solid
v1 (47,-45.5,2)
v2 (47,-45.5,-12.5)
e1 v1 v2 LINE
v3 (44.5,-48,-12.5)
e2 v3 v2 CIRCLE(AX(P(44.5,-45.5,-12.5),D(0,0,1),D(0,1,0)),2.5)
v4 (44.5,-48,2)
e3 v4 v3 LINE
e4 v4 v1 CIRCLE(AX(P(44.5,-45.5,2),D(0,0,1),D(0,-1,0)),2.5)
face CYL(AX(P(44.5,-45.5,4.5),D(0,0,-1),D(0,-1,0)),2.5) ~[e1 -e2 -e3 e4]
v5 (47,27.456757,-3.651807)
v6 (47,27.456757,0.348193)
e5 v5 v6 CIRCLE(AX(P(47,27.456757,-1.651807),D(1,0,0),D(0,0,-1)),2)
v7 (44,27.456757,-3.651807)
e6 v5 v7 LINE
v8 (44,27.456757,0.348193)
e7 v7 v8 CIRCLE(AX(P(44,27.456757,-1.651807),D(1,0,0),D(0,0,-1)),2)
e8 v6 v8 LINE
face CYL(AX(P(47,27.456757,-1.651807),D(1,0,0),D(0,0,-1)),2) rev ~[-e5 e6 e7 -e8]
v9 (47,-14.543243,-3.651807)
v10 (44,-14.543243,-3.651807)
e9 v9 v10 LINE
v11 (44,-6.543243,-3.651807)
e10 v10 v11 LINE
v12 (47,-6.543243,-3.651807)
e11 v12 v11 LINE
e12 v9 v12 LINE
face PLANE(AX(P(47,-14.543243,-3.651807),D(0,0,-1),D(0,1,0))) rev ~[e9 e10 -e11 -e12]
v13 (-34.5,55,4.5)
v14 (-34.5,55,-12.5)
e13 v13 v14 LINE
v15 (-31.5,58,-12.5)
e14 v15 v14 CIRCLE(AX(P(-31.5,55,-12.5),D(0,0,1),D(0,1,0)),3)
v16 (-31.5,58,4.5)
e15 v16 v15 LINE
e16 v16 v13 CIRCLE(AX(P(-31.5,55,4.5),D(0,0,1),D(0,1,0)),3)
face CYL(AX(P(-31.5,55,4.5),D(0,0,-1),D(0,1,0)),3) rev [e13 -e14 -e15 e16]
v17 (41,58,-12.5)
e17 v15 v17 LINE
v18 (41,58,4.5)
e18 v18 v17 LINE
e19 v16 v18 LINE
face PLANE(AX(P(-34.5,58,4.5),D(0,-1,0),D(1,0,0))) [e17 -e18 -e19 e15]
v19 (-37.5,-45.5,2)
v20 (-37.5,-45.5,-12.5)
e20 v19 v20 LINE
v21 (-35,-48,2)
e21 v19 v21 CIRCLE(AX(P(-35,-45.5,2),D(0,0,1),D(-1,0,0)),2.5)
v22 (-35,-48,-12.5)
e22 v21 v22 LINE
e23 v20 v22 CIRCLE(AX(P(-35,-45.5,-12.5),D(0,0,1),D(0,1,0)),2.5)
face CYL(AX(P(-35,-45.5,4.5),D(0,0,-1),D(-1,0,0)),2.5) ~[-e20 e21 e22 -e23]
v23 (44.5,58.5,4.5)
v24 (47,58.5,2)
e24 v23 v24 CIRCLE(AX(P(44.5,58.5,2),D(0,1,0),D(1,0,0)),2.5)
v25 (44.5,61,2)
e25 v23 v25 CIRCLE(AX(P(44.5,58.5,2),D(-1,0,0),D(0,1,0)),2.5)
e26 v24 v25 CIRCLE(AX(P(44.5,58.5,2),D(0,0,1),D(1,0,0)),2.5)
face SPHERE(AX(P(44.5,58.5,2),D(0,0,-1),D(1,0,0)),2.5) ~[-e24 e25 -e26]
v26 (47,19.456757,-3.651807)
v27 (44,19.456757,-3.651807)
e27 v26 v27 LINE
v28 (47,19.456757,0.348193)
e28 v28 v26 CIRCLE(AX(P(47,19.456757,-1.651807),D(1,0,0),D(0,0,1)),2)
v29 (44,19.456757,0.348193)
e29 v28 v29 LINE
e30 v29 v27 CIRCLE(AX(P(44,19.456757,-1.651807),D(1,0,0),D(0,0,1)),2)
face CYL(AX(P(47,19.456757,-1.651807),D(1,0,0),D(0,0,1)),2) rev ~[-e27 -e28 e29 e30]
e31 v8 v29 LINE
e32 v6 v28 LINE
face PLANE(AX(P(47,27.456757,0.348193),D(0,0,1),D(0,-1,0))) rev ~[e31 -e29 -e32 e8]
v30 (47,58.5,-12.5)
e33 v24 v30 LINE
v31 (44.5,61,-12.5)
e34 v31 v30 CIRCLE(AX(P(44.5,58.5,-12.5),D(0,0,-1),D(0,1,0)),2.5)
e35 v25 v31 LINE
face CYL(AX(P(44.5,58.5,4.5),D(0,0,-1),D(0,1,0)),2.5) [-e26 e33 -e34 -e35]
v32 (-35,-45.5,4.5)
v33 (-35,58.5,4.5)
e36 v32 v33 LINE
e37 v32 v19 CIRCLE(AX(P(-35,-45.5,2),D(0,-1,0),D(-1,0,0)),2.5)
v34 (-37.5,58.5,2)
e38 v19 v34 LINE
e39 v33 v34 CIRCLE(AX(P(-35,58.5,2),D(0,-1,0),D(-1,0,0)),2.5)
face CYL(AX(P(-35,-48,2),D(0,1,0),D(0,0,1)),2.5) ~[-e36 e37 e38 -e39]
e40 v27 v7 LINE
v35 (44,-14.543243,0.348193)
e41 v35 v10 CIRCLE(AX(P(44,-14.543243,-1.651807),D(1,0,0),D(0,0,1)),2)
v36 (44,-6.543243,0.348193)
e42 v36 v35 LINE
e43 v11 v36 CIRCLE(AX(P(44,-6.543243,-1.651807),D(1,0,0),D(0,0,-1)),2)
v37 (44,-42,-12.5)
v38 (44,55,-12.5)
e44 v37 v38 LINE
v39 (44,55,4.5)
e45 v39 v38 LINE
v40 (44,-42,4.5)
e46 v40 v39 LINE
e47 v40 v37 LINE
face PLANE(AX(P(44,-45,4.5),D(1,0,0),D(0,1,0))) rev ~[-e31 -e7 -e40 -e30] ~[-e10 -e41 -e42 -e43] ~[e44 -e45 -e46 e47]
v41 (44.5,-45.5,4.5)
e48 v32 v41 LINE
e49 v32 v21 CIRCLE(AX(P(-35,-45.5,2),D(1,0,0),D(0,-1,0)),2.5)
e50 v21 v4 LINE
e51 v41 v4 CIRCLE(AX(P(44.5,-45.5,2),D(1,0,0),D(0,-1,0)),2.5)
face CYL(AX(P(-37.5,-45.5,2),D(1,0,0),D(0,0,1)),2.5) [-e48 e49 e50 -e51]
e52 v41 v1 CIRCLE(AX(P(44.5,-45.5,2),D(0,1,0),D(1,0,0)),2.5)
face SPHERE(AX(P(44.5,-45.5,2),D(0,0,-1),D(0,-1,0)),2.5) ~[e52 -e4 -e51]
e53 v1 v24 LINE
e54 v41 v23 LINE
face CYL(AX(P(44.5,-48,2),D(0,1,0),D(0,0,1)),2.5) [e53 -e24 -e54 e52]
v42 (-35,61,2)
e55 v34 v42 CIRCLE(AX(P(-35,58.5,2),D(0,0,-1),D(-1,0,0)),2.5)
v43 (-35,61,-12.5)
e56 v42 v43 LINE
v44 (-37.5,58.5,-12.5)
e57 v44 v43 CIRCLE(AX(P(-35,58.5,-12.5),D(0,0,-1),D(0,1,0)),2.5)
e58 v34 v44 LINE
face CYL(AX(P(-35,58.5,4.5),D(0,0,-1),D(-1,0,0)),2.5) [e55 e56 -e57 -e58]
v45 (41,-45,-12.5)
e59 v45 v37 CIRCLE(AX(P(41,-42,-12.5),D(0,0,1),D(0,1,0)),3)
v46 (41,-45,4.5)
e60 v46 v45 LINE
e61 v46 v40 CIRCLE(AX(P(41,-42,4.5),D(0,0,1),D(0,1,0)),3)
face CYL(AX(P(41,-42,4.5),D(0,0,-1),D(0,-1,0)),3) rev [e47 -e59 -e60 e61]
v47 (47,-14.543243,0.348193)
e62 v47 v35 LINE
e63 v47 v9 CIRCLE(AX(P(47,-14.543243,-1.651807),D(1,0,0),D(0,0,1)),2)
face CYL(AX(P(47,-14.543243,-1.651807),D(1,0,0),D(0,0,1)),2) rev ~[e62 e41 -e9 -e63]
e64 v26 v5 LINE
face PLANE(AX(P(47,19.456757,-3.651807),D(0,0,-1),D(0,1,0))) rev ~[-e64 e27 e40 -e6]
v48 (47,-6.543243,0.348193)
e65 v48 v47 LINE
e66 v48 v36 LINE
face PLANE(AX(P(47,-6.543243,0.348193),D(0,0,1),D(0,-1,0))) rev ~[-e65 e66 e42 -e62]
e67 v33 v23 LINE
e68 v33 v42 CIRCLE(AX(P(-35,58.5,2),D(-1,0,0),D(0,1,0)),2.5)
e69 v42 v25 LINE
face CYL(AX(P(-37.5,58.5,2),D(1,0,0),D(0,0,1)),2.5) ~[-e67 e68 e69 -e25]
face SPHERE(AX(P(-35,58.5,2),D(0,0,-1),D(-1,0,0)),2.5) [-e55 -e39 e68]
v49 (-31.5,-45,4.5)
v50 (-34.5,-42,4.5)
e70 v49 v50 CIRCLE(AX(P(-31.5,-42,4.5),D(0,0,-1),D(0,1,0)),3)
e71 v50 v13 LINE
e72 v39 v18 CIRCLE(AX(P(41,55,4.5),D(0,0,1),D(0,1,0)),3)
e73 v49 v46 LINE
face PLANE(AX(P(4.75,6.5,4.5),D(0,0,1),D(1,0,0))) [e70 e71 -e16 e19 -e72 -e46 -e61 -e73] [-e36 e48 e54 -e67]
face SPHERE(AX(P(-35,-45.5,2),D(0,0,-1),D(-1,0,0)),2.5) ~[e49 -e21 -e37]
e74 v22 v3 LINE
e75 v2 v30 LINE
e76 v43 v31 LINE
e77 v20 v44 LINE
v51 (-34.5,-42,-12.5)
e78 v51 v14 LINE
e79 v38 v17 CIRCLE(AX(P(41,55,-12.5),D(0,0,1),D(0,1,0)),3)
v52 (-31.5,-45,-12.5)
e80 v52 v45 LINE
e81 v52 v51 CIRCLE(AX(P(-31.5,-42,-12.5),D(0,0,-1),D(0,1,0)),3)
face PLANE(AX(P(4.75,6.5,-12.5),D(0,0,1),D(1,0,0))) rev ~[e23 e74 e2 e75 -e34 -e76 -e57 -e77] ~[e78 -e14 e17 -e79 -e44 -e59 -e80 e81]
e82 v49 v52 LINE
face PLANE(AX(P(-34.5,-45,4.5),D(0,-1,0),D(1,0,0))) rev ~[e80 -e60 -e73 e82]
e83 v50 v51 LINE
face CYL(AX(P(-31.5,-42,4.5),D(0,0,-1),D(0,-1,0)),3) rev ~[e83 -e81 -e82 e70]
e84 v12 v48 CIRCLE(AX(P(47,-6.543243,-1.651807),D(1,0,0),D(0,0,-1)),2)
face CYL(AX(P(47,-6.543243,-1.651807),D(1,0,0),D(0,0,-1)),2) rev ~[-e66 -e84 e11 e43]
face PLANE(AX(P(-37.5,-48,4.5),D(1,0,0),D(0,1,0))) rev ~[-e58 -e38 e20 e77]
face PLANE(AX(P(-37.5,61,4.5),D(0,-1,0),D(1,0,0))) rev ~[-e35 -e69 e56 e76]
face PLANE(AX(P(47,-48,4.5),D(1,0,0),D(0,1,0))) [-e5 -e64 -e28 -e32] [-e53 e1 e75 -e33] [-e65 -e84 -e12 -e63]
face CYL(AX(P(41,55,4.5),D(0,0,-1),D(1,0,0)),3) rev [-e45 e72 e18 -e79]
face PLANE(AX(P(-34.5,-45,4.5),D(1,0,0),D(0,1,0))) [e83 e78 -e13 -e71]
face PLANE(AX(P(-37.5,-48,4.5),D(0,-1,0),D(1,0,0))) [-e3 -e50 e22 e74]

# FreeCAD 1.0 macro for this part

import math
import FreeCAD as App
import Part
import Sketcher

V = App.Vector
Q = App.Units.Quantity


def edges_at(feature, points):
    """Names of the edges that pass closest to the given points."""
    edges = feature.Shape.Edges
    near = lambda p: min(range(len(edges)), key=lambda i: edges[i].distToShape(Part.Vertex(*p))[0])
    return sorted({f"Edge{near(p) + 1}" for p in points})

doc = App.newDocument("Part")
body = doc.addObject("PartDesign::Body", "Body")

# Sketch on XY plane
sketch1 = doc.addObject("Sketcher::SketchObject", "Sketch")
body.addObject(sketch1)
sketch1.AttachmentSupport = (doc.XY_Plane, [""])
sketch1.MapMode = "FlatFace"
sketch1.addGeometry(Part.LineSegment(V(-37.5, 61, 0), V(-37.5, -48, 0)), False)
sketch1.addGeometry(Part.LineSegment(V(-37.5, -48, 0), V(47, -48, 0)), False)
sketch1.addGeometry(Part.LineSegment(V(47, -48, 0), V(47, 61, 0)), False)
sketch1.addGeometry(Part.LineSegment(V(47, 61, 0), V(-37.5, 61, 0)), False)
sketch1.addGeometry(Part.LineSegment(V(44, -45, 0), V(-34.5, -45, 0)), False)
sketch1.addGeometry(Part.LineSegment(V(-34.5, -45, 0), V(-34.5, 58, 0)), False)
sketch1.addGeometry(Part.LineSegment(V(-34.5, 58, 0), V(44, 58, 0)), False)
sketch1.addGeometry(Part.LineSegment(V(44, 58, 0), V(44, -45, 0)), False)
sketch1.addConstraint(Sketcher.Constraint("Coincident", 0, 2, 1, 1))
sketch1.addConstraint(Sketcher.Constraint("Coincident", 1, 2, 2, 1))
sketch1.addConstraint(Sketcher.Constraint("Coincident", 2, 2, 3, 1))
sketch1.addConstraint(Sketcher.Constraint("Coincident", 3, 2, 0, 1))
sketch1.addConstraint(Sketcher.Constraint("Coincident", 4, 2, 5, 1))
sketch1.addConstraint(Sketcher.Constraint("Coincident", 5, 2, 6, 1))
sketch1.addConstraint(Sketcher.Constraint("Coincident", 6, 2, 7, 1))
sketch1.addConstraint(Sketcher.Constraint("Coincident", 7, 2, 4, 1))
sketch1.addConstraint(Sketcher.Constraint("Vertical", 0))
sketch1.addConstraint(Sketcher.Constraint("Horizontal", 1))
sketch1.addConstraint(Sketcher.Constraint("Vertical", 2))
sketch1.addConstraint(Sketcher.Constraint("Horizontal", 3))
sketch1.addConstraint(Sketcher.Constraint("Horizontal", 4))
sketch1.addConstraint(Sketcher.Constraint("Vertical", 5))
sketch1.addConstraint(Sketcher.Constraint("Horizontal", 6))
sketch1.addConstraint(Sketcher.Constraint("Vertical", 7))
sketch1.addConstraint(Sketcher.Constraint("DistanceY", 0, 2, 0, 1, Q("109 mm")))
sketch1.addConstraint(Sketcher.Constraint("DistanceY", 5, 1, 5, 2, Q("103 mm")))
sketch1.addConstraint(Sketcher.Constraint("DistanceX", 1, 1, 1, 2, Q("84.5 mm")))
sketch1.addConstraint(Sketcher.Constraint("DistanceX", 4, 2, 4, 1, Q("78.5 mm")))
sketch1.addConstraint(Sketcher.Constraint("DistanceY", 0, 2, -1, 1, Q("48 mm")))
sketch1.addConstraint(Sketcher.Constraint("DistanceX", -1, 1, 1, 2, Q("47 mm")))
sketch1.addConstraint(Sketcher.Constraint("DistanceY", 4, 2, -1, 1, Q("45 mm")))
sketch1.addConstraint(Sketcher.Constraint("DistanceX", -1, 1, 6, 2, Q("44 mm")))
pad1 = doc.addObject("PartDesign::Pad", "Pad")
body.addObject(pad1)
pad1.Profile = sketch1
pad1.Length = 17
pad1.Reversed = True
doc.recompute()

fillet = doc.addObject("PartDesign::Fillet", "Fillet")
body.addObject(fillet)
fillet.Base = (pad1, edges_at(pad1, [
    (-34.5, 58, -8.5),
    (-34.5, -45, -8.5),
    (44, 58, -8.5),
    (44, -45, -8.5),
]))
fillet.Radius = 3
doc.recompute()

fillet2 = doc.addObject("PartDesign::Fillet", "Fillet001")
body.addObject(fillet2)
fillet2.Base = (fillet, edges_at(fillet, [
    (47, 61, -8.5),
    (-37.5, 61, -8.5),
    (47, -48, -8.5),
    (-37.5, -48, -8.5),
    (-37.5, 6.5, 0),
    (4.75, -48, 0),
    (47, 6.5, 0),
    (4.75, 61, 0),
]))
fillet2.Radius = 2.5

# Sketch on YZ plane
sketch2 = doc.addObject("Sketcher::SketchObject", "Sketch001")
body.addObject(sketch2)
sketch2.AttachmentSupport = (doc.YZ_Plane, [""])
sketch2.MapMode = "FlatFace"
sketch2.AttachmentOffset = App.Placement(V(0, 0, 47), App.Rotation())
sketch2.addGeometry(Part.ArcOfCircle(Part.Circle(V(-14.543243, -6.151807, 0), V(0, 0, 1), 2), math.radians(90), math.radians(270)), False)
sketch2.addGeometry(Part.LineSegment(V(-14.543243, -8.151807, 0), V(-6.543243, -8.151807, 0)), False)
sketch2.addGeometry(Part.ArcOfCircle(Part.Circle(V(-6.543243, -6.151807, 0), V(0, 0, 1), 2), math.radians(-90), math.radians(90)), False)
sketch2.addGeometry(Part.LineSegment(V(-6.543243, -4.151807, 0), V(-14.543243, -4.151807, 0)), False)
sketch2.addGeometry(Part.ArcOfCircle(Part.Circle(V(19.456757, -6.151807, 0), V(0, 0, 1), 2), math.radians(90), math.radians(270)), False)
sketch2.addGeometry(Part.LineSegment(V(19.456757, -8.151807, 0), V(27.456757, -8.151807, 0)), False)
sketch2.addGeometry(Part.ArcOfCircle(Part.Circle(V(27.456757, -6.151807, 0), V(0, 0, 1), 2), math.radians(-90), math.radians(90)), False)
sketch2.addGeometry(Part.LineSegment(V(27.456757, -4.151807, 0), V(19.456757, -4.151807, 0)), False)
sketch2.addConstraint(Sketcher.Constraint("Tangent", 0, 2, 1, 1))
sketch2.addConstraint(Sketcher.Constraint("Tangent", 1, 2, 2, 1))
sketch2.addConstraint(Sketcher.Constraint("Tangent", 2, 2, 3, 1))
sketch2.addConstraint(Sketcher.Constraint("Tangent", 3, 2, 0, 1))
sketch2.addConstraint(Sketcher.Constraint("Tangent", 4, 2, 5, 1))
sketch2.addConstraint(Sketcher.Constraint("Tangent", 5, 2, 6, 1))
sketch2.addConstraint(Sketcher.Constraint("Tangent", 6, 2, 7, 1))
sketch2.addConstraint(Sketcher.Constraint("Tangent", 7, 2, 4, 1))
sketch2.addConstraint(Sketcher.Constraint("Horizontal", 1))
sketch2.addConstraint(Sketcher.Constraint("Horizontal", 3))
sketch2.addConstraint(Sketcher.Constraint("Horizontal", 5))
sketch2.addConstraint(Sketcher.Constraint("Horizontal", 7))
sketch2.addConstraint(Sketcher.Constraint("Equal", 2, 4))
sketch2.addConstraint(Sketcher.Constraint("Horizontal", 2, 3, 4, 3))
sketch2.addConstraint(Sketcher.Constraint("Equal", 3, 5))
sketch2.addConstraint(Sketcher.Constraint("Radius", 0, Q("2 mm")))
sketch2.addConstraint(Sketcher.Constraint("DistanceX", 1, 1, 1, 2, Q("8 mm")))
sketch2.addConstraint(Sketcher.Constraint("DistanceX", 2, 3, 4, 3, Q("26 mm")))
sketch2.addConstraint(Sketcher.Constraint("DistanceX", 0, 3, -1, 1, Q("14.543243 mm")))
sketch2.addConstraint(Sketcher.Constraint("DistanceY", 0, 3, -1, 1, Q("6.151807 mm")))
pocket1 = doc.addObject("PartDesign::Pocket", "Pocket")
body.addObject(pocket1)
pocket1.Profile = sketch2
pocket1.Length = 3
body2 = doc.addObject("PartDesign::Body", "Body001")
doc.recompute()

body.Placement = App.Placement(V(0, 0, 4.5), App.Rotation(V(0, 0, 1), 0))
boolean = doc.addObject("PartDesign::Boolean", "Boolean")
body2.addObject(boolean)
boolean.Type = "Fuse"
boolean.addObjects([body])

doc.recompute()
